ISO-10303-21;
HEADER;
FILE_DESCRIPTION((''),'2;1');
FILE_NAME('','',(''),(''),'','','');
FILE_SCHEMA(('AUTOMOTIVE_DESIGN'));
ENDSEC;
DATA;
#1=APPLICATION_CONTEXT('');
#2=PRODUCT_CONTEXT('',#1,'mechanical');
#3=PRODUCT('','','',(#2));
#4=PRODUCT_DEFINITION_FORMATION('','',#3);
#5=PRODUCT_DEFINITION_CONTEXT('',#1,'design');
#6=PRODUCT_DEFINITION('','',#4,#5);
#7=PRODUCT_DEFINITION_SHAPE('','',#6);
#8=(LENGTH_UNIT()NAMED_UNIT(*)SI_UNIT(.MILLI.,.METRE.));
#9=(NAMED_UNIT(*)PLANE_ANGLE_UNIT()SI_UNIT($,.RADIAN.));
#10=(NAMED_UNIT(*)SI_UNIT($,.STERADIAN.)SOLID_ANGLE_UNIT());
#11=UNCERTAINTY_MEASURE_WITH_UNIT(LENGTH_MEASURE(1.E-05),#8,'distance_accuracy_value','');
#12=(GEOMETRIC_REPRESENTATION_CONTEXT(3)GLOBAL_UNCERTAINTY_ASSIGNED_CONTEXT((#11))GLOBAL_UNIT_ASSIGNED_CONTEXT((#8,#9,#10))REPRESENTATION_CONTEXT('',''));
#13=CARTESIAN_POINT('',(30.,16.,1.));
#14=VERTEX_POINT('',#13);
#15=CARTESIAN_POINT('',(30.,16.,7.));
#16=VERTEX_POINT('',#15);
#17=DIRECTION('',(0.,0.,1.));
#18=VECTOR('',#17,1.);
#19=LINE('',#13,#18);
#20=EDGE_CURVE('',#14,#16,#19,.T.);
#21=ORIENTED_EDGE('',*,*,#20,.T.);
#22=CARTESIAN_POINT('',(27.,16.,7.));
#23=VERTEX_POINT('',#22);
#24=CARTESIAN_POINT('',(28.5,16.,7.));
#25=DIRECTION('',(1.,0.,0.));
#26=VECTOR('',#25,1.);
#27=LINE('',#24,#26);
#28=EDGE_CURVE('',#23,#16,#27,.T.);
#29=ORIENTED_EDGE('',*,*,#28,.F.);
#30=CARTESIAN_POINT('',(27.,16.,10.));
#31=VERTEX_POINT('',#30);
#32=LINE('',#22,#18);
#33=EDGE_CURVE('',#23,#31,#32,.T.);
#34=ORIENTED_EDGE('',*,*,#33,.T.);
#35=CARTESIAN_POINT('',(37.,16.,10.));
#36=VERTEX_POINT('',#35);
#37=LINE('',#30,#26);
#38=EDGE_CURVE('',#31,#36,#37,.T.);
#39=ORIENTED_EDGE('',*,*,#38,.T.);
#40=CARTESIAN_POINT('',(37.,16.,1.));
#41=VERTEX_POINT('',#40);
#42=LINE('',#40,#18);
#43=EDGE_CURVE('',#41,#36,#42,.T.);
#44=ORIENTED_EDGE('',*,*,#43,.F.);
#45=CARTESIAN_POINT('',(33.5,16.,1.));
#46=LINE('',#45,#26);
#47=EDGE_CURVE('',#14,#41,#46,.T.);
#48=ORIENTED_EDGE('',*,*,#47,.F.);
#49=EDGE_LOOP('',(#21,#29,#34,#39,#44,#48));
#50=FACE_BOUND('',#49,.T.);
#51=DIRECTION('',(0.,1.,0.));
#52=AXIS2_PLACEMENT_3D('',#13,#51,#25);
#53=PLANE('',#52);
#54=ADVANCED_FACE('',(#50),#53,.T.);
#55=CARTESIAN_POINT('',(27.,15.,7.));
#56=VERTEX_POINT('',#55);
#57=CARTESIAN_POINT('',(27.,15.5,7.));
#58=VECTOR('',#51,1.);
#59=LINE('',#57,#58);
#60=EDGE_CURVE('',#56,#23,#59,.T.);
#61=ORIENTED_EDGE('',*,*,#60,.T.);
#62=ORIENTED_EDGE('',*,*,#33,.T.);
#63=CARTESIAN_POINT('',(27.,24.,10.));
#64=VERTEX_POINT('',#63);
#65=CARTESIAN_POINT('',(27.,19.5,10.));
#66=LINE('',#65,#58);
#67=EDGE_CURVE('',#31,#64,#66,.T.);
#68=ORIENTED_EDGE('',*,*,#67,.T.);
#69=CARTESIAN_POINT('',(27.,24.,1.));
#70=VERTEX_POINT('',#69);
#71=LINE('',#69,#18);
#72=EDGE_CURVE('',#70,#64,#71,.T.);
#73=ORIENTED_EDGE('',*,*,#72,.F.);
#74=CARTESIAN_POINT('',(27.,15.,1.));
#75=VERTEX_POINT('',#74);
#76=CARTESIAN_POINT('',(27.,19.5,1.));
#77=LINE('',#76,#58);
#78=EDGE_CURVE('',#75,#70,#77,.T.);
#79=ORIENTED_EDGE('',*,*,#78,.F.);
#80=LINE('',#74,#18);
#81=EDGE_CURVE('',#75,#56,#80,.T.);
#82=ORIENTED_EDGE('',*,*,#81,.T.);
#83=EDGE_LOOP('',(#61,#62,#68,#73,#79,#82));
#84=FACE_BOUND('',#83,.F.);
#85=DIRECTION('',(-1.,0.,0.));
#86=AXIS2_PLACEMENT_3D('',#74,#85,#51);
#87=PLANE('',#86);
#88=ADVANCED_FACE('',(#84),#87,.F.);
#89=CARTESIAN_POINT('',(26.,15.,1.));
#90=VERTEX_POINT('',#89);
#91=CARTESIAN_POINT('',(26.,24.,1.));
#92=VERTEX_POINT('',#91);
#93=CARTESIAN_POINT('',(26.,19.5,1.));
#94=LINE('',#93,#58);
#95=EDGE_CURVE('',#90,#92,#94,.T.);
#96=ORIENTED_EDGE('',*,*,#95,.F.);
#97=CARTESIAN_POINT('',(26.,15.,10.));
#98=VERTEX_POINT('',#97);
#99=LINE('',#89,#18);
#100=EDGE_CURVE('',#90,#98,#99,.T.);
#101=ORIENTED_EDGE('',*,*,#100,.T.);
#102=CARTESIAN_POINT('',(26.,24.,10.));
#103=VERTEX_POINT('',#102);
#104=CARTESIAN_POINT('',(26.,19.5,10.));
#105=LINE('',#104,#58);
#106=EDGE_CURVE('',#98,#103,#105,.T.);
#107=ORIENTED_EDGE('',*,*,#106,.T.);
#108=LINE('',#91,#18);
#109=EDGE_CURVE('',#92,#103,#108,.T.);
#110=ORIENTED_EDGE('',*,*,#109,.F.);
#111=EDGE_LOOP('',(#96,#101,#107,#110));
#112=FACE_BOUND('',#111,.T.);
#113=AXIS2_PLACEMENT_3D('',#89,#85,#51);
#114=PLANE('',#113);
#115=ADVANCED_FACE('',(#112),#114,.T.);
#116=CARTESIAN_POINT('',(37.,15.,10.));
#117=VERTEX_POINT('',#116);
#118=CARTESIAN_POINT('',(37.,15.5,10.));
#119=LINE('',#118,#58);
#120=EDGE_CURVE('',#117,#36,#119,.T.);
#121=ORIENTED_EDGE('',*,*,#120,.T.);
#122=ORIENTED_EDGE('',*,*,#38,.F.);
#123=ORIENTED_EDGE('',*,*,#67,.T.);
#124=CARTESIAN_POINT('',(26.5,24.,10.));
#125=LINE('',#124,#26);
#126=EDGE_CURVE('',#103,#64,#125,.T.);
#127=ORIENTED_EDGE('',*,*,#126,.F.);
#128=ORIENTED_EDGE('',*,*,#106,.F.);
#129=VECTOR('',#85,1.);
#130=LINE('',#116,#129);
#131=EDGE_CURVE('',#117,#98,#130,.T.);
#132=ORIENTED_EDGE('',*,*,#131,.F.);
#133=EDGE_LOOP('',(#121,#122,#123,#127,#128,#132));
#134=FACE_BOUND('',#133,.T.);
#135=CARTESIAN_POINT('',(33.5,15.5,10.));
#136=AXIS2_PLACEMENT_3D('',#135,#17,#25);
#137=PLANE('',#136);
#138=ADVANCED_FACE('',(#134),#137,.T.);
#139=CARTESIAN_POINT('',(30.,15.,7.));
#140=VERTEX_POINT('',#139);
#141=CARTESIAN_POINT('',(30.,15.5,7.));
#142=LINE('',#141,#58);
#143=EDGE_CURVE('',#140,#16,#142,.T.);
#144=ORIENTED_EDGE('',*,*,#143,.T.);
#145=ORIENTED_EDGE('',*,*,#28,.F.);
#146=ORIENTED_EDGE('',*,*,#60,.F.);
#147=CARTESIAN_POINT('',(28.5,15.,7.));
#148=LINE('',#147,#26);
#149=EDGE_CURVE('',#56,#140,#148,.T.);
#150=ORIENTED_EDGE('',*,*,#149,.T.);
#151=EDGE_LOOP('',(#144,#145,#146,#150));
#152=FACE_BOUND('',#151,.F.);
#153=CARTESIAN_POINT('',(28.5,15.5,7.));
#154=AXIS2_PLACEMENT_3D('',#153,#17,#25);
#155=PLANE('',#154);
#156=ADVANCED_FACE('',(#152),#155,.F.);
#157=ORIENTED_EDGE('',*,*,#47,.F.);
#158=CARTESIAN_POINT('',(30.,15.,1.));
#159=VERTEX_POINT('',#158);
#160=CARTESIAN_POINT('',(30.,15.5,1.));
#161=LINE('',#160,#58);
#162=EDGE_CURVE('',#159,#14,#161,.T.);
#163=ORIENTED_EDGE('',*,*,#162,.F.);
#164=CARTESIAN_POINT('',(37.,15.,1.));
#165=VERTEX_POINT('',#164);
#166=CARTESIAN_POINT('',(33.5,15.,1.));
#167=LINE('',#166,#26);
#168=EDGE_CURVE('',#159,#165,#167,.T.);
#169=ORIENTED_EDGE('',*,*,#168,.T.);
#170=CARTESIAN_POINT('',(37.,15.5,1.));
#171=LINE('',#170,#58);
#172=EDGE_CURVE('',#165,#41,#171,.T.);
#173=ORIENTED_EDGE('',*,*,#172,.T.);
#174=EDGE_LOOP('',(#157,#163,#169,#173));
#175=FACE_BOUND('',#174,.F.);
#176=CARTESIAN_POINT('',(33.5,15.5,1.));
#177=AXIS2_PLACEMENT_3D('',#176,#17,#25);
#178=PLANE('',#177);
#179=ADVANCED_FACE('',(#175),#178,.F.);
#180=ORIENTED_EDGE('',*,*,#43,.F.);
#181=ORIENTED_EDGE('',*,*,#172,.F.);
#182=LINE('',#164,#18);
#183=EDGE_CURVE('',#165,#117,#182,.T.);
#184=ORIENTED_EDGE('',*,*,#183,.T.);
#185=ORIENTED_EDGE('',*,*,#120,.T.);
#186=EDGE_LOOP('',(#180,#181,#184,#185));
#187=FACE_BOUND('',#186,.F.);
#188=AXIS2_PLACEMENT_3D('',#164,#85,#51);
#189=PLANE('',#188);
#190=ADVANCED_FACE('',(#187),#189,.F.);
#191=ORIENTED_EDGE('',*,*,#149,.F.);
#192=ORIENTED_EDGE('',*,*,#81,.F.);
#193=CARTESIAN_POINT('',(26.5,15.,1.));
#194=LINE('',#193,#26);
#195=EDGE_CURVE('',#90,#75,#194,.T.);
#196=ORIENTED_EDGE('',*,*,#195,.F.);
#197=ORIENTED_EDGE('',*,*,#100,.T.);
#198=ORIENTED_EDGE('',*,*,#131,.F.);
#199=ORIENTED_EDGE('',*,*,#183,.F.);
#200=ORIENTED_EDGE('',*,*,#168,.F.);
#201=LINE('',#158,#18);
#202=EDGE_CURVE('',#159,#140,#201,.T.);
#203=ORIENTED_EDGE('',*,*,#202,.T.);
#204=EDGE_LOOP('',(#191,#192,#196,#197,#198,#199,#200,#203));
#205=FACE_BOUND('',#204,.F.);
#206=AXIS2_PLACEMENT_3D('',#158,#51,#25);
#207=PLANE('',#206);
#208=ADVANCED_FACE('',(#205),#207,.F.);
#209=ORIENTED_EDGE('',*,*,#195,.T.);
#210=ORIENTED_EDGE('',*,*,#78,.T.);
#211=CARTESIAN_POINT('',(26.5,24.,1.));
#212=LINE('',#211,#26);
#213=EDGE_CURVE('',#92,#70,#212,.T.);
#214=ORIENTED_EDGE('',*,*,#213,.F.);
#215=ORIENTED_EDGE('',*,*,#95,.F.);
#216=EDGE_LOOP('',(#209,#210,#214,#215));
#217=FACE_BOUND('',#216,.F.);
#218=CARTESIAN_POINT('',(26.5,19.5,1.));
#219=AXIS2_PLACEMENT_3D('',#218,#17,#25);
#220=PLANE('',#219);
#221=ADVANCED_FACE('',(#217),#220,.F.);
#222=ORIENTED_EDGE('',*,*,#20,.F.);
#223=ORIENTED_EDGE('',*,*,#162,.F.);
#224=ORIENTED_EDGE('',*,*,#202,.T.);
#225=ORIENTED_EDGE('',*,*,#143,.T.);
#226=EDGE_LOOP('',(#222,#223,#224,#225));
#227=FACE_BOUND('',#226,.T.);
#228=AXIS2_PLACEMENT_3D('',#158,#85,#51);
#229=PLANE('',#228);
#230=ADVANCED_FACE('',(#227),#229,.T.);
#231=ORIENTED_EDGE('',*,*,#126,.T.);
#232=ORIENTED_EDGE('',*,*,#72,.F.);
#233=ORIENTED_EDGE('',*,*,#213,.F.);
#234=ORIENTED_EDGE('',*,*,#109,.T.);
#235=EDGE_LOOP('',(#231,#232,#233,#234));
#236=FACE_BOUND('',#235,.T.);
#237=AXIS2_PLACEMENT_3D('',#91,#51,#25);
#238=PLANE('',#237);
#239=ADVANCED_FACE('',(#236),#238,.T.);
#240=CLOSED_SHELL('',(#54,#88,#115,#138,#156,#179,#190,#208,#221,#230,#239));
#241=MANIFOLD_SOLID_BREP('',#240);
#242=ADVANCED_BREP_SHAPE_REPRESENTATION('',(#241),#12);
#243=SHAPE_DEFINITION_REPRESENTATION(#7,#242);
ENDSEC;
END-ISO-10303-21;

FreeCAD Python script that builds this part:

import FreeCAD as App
import Part
import Sketcher
from FreeCAD import Vector


def add_polygon(sketch, points):
    """Adds a closed chain of lines whose ends are joined by coincident constraints."""
    first, n = sketch.GeometryCount, len(points)
    for a, b in zip(points, points[1:] + points[:1]):
        sketch.addGeometry(Part.LineSegment(App.Vector(*a, 0), App.Vector(*b, 0)), False)
    for i in range(n):
        sketch.addConstraint(Sketcher.Constraint("Coincident", first + i, 2, first + (i + 1) % n, 1))

doc = App.newDocument("Part")
body = doc.addObject("PartDesign::Body", "Body")

# Sketch on XY plane
sketch1 = body.newObject("Sketcher::SketchObject", "Sketch")
sketch1.AttachmentSupport = (doc.getObject("XY_Plane"), [""])
sketch1.MapMode = "FlatFace"
sketch1.AttachmentOffset = App.Placement(Vector(0, 0, 1), App.Rotation())
add_polygon(sketch1, [(33, 24), (33, 15), (34, 15), (34, 24)])  # lines 0-3
sketch1.addConstraint([
    Sketcher.Constraint("Vertical", 0),
    Sketcher.Constraint("Horizontal", 1),
    Sketcher.Constraint("Vertical", 2),
    Sketcher.Constraint("Horizontal", 3),
    Sketcher.Constraint("DistanceX", 1, 1, 1, 2, 1.0),
    Sketcher.Constraint("DistanceY", 0, 2, 0, 1, 9.0),
    Sketcher.Constraint("DistanceX", -1, 1, 0, 2, 33.0),
    Sketcher.Constraint("DistanceY", -1, 1, 0, 2, 15.0),
])
pad1 = body.newObject("PartDesign::Pad", "Pad")
pad1.Profile = sketch1
pad1.Length = 9
body2 = doc.addObject("PartDesign::Body", "Body001")

# Sketch on XY plane
sketch2 = body2.newObject("Sketcher::SketchObject", "Sketch001")
sketch2.AttachmentSupport = (doc.getObject("XY_Plane001"), [""])
sketch2.MapMode = "FlatFace"
sketch2.AttachmentOffset = App.Placement(Vector(0, 0, 1), App.Rotation())
add_polygon(sketch2, [(37, 16), (37, 15), (44, 15), (44, 16)])  # lines 0-3
sketch2.addConstraint([
    Sketcher.Constraint("Vertical", 0),
    Sketcher.Constraint("Horizontal", 1),
    Sketcher.Constraint("Vertical", 2),
    Sketcher.Constraint("Horizontal", 3),
    Sketcher.Constraint("DistanceX", 1, 1, 1, 2, 7.0),
    Sketcher.Constraint("DistanceY", 0, 2, 0, 1, 1.0),
    Sketcher.Constraint("DistanceX", -1, 1, 0, 2, 37.0),
    Sketcher.Constraint("DistanceY", -1, 1, 0, 2, 15.0),
])
pad2 = body2.newObject("PartDesign::Pad", "Pad001")
pad2.Profile = sketch2
pad2.Length = 9
body3 = doc.addObject("PartDesign::Body", "Body002")

# Sketch on XY plane
sketch3 = body3.newObject("Sketcher::SketchObject", "Sketch002")
sketch3.AttachmentSupport = (doc.getObject("XY_Plane002"), [""])
sketch3.MapMode = "FlatFace"
sketch3.AttachmentOffset = App.Placement(Vector(0, 0, 7), App.Rotation())
add_polygon(sketch3, [(34, 16), (34, 15), (37, 15), (37, 16)])  # lines 0-3
sketch3.addConstraint([
    Sketcher.Constraint("Vertical", 0),
    Sketcher.Constraint("Horizontal", 1),
    Sketcher.Constraint("Vertical", 2),
    Sketcher.Constraint("Horizontal", 3),
    Sketcher.Constraint("DistanceX", 1, 1, 1, 2, 3.0),
    Sketcher.Constraint("DistanceY", 0, 2, 0, 1, 1.0),
    Sketcher.Constraint("DistanceX", -1, 1, 0, 2, 34.0),
    Sketcher.Constraint("DistanceY", -1, 1, 0, 2, 15.0),
])
pad3 = body3.newObject("PartDesign::Pad", "Pad002")
pad3.Profile = sketch3
pad3.Length = 3
doc.recompute()

boolean = body3.newObject("PartDesign::Boolean", "Boolean")
boolean.Type = "Fuse"
boolean.addObjects([body])
doc.recompute()

boolean2 = body3.newObject("PartDesign::Boolean", "Boolean001")
boolean2.Type = "Fuse"
boolean2.addObjects([body2])
body4 = doc.addObject("PartDesign::Body", "Body003")
doc.recompute()

body3.Placement = App.Placement(Vector(-7, 0, 0), App.Rotation(Vector(0, 0, 1), 0))
boolean3 = body4.newObject("PartDesign::Boolean", "Boolean002")
boolean3.Type = "Fuse"
boolean3.addObjects([body3])

doc.recompute()
